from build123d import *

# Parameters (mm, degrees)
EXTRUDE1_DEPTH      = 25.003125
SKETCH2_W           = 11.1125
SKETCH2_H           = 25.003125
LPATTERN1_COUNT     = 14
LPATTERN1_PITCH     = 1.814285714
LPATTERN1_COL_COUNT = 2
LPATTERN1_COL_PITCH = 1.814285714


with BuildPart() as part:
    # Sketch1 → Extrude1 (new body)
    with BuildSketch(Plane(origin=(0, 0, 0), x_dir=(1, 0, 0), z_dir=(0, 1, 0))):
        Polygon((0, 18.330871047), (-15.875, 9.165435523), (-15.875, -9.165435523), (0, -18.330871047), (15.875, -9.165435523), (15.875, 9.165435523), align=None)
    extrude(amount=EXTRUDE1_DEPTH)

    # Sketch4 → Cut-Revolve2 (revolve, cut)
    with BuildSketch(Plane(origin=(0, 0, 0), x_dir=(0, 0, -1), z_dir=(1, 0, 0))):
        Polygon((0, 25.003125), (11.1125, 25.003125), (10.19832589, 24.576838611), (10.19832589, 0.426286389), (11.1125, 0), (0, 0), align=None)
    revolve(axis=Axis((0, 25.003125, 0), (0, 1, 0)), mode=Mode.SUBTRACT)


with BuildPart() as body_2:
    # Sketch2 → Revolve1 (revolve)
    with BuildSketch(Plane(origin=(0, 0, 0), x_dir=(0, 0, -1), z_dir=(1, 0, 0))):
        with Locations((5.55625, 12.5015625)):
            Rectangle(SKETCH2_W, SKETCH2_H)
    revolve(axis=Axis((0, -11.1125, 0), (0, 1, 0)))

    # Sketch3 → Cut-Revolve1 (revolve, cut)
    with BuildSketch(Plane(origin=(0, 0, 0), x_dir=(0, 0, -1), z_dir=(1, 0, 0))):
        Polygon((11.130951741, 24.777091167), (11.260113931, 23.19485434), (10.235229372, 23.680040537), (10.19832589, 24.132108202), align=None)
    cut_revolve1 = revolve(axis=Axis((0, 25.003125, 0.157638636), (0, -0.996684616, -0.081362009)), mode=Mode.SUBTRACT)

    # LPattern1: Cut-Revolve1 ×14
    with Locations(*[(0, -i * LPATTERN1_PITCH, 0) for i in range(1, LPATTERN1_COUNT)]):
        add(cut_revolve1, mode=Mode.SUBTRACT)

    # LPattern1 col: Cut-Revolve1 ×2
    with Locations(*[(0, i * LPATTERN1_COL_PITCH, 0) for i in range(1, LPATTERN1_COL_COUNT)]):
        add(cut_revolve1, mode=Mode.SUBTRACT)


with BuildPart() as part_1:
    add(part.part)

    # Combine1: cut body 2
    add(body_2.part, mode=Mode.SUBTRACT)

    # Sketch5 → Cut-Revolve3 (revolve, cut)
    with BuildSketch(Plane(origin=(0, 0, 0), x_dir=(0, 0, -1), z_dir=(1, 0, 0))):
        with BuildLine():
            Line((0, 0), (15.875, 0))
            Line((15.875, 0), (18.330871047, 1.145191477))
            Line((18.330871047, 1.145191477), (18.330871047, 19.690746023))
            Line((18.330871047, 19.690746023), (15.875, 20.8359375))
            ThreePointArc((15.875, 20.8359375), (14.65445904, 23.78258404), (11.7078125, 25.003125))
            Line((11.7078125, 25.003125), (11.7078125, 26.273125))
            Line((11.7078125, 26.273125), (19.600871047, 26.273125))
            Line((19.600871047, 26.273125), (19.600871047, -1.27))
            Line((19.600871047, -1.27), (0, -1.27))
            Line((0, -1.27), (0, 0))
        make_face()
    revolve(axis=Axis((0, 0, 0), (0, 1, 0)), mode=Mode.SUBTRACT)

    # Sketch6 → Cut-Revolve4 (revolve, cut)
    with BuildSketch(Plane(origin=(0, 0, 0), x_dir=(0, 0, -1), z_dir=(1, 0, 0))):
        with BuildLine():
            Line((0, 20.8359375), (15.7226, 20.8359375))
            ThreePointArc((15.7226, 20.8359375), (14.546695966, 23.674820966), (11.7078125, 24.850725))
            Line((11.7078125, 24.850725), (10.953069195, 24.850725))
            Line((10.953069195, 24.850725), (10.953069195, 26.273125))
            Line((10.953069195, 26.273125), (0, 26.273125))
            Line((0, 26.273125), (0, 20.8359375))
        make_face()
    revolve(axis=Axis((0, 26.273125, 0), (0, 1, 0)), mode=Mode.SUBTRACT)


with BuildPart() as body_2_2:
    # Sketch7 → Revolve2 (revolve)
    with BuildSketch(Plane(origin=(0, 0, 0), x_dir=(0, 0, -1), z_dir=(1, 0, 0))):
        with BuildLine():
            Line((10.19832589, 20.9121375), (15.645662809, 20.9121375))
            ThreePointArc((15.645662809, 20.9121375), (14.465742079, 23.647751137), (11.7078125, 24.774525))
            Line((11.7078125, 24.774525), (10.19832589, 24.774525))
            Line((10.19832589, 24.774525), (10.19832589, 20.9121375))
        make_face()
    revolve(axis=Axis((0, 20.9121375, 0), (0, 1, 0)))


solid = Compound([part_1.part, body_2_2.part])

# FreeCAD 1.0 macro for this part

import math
import FreeCAD as App
import Part
import Sketcher
Q = App.Units.Quantity

doc = App.newDocument("Part")
body = doc.addObject("PartDesign::Body", "Body")

# Sketch on XZ plane
sketch1 = body.newObject("Sketcher::SketchObject", "Sketch")
sketch1.AttachmentSupport = (doc.getObject("XZ_Plane"), [""])
sketch1.MapMode = "FlatFace"
sketch1.addGeometry(Part.LineSegment(App.Vector(0, -18, 0), App.Vector(-16, -9, 0)), False)
sketch1.addGeometry(Part.LineSegment(App.Vector(-16, -9, 0), App.Vector(-16, 9, 0)), False)
sketch1.addGeometry(Part.LineSegment(App.Vector(-16, 9, 0), App.Vector(0, 18, 0)), False)
sketch1.addGeometry(Part.LineSegment(App.Vector(0, 18, 0), App.Vector(16, 9, 0)), False)
sketch1.addGeometry(Part.LineSegment(App.Vector(16, 9, 0), App.Vector(16, -9, 0)), False)
sketch1.addGeometry(Part.LineSegment(App.Vector(16, -9, 0), App.Vector(0, -18, 0)), False)
sketch1.addConstraint(Sketcher.Constraint("Coincident", 0, 2, 1, 1))
sketch1.addConstraint(Sketcher.Constraint("Coincident", 1, 2, 2, 1))
sketch1.addConstraint(Sketcher.Constraint("Coincident", 2, 2, 3, 1))
sketch1.addConstraint(Sketcher.Constraint("Coincident", 3, 2, 4, 1))
sketch1.addConstraint(Sketcher.Constraint("Coincident", 4, 2, 5, 1))
sketch1.addConstraint(Sketcher.Constraint("Coincident", 5, 2, 0, 1))
sketch1.addConstraint(Sketcher.Constraint("Vertical", 1))
sketch1.addConstraint(Sketcher.Constraint("Vertical", 4))
sketch1.addConstraint(Sketcher.Constraint("Symmetric", 0, 2, 3, 2, -1, 1))
sketch1.addConstraint(Sketcher.Constraint("Symmetric", 2, 2, 5, 2, -1, 1))
sketch1.addConstraint(Sketcher.Constraint("PointOnObject", 2, 2, -2))
sketch1.addConstraint(Sketcher.Constraint("Parallel", 2, 5))
sketch1.addConstraint(Sketcher.Constraint("Horizontal", 1, 2, 3, 2))
sketch1.addConstraint(Sketcher.Constraint("Angle", 0, Q("150 deg")))
sketch1.addConstraint(Sketcher.Constraint("DistanceX", 1, 2, 3, 2, Q("1.25 in")))
sketch1.addConstraint(Sketcher.Constraint("DistanceY", 1, 1, 1, 2, Q("18.330871 mm")))
pad1 = body.newObject("PartDesign::Pad", "Pad")
pad1.Profile = sketch1
pad1.Length = Q("0.984375 in")
pad1.Reversed = True

# Sketch on YZ plane
sketch2 = body.newObject("Sketcher::SketchObject", "Sketch001")
sketch2.AttachmentSupport = (doc.getObject("YZ_Plane"), [""])
sketch2.MapMode = "FlatFace"
sketch2.addGeometry(Part.LineSegment(App.Vector(25, -11.1, 0), App.Vector(25, 0, 0)), False)
sketch2.addGeometry(Part.LineSegment(App.Vector(25, 0, 0), App.Vector(0, 0, 0)), False)
sketch2.addGeometry(Part.LineSegment(App.Vector(0, 0, 0), App.Vector(0, -11.1, 0)), False)
sketch2.addGeometry(Part.LineSegment(App.Vector(0, -11.1, 0), App.Vector(0.4, -10.2, 0)), False)
sketch2.addGeometry(Part.LineSegment(App.Vector(0.4, -10.2, 0), App.Vector(24.6, -10.2, 0)), False)
sketch2.addGeometry(Part.LineSegment(App.Vector(24.6, -10.2, 0), App.Vector(25, -11.1, 0)), False)
sketch2.addConstraint(Sketcher.Constraint("Coincident", 0, 2, 1, 1))
sketch2.addConstraint(Sketcher.Constraint("Coincident", 1, 2, 2, 1))
sketch2.addConstraint(Sketcher.Constraint("Coincident", 2, 2, 3, 1))
sketch2.addConstraint(Sketcher.Constraint("Coincident", 3, 2, 4, 1))
sketch2.addConstraint(Sketcher.Constraint("Coincident", 4, 2, 5, 1))
sketch2.addConstraint(Sketcher.Constraint("Coincident", 5, 2, 0, 1))
sketch2.addConstraint(Sketcher.Constraint("Vertical", 0))
sketch2.addConstraint(Sketcher.Constraint("Horizontal", 1))
sketch2.addConstraint(Sketcher.Constraint("Vertical", 2))
sketch2.addConstraint(Sketcher.Constraint("Horizontal", 4))
sketch2.addConstraint(Sketcher.Constraint("Coincident", 1, 2, -1, 1))
sketch2.addConstraint(Sketcher.Constraint("Horizontal", 2, 2, 5, 2))
sketch2.addConstraint(Sketcher.Constraint("Equal", 3, 5))
sketch2.addConstraint(Sketcher.Constraint("Angle", 3, Q("65 deg")))
sketch2.addConstraint(Sketcher.Constraint("DistanceX", 1, 2, 1, 1, Q("0.984375 in")))
sketch2.addConstraint(Sketcher.Constraint("DistanceY", 0, 1, 0, 2, Q("0.4375 in")))
sketch2.addConstraint(Sketcher.Constraint("Distance", 3, Q("1.00868 mm")))
groove = body.newObject("PartDesign::Groove", "Groove")
groove.Profile = sketch2
groove.ReferenceAxis = (sketch2, ["H_Axis"])
groove.Angle = 360
body2 = doc.addObject("PartDesign::Body", "Body001")

# Sketch on YZ plane
sketch3 = body2.newObject("Sketcher::SketchObject", "Sketch002")
sketch3.AttachmentSupport = (doc.getObject("YZ_Plane001"), [""])
sketch3.MapMode = "FlatFace"
sketch3.addGeometry(Part.LineSegment(App.Vector(25, 0, 0), App.Vector(0, 0, 0)), False)
sketch3.addGeometry(Part.LineSegment(App.Vector(0, 0, 0), App.Vector(0, -11, 0)), False)
sketch3.addGeometry(Part.LineSegment(App.Vector(0, -11, 0), App.Vector(25, -11, 0)), False)
sketch3.addGeometry(Part.LineSegment(App.Vector(25, -11, 0), App.Vector(25, 0, 0)), False)
sketch3.addConstraint(Sketcher.Constraint("Coincident", 0, 2, 1, 1))
sketch3.addConstraint(Sketcher.Constraint("Coincident", 1, 2, 2, 1))
sketch3.addConstraint(Sketcher.Constraint("Coincident", 2, 2, 3, 1))
sketch3.addConstraint(Sketcher.Constraint("Coincident", 3, 2, 0, 1))
sketch3.addConstraint(Sketcher.Constraint("Horizontal", 0))
sketch3.addConstraint(Sketcher.Constraint("Vertical", 1))
sketch3.addConstraint(Sketcher.Constraint("Horizontal", 2))
sketch3.addConstraint(Sketcher.Constraint("Vertical", 3))
sketch3.addConstraint(Sketcher.Constraint("Coincident", 0, 2, -1, 1))
sketch3.addConstraint(Sketcher.Constraint("DistanceX", 0, 2, 0, 1, Q("0.984375 in")))
sketch3.addConstraint(Sketcher.Constraint("DistanceY", 1, 2, 1, 1, Q("0.4375 in")))
revolution = body2.newObject("PartDesign::Revolution", "Revolution")
revolution.Profile = sketch3
revolution.ReferenceAxis = (sketch3, ["H_Axis"])
revolution.Angle = 360

# Sketch on YZ plane
sketch4 = body2.newObject("Sketcher::SketchObject", "Sketch003")
sketch4.AttachmentSupport = (doc.getObject("YZ_Plane001"), [""])
sketch4.MapMode = "FlatFace"
sketch4.addGeometry(Part.LineSegment(App.Vector(23.19, -11.26, 0), App.Vector(24.78, -11.13, 0)), False)
sketch4.addGeometry(Part.LineSegment(App.Vector(24.78, -11.13, 0), App.Vector(24.13, -10.2, 0)), False)
sketch4.addGeometry(Part.LineSegment(App.Vector(24.13, -10.2, 0), App.Vector(23.68, -10.24, 0)), False)
sketch4.addGeometry(Part.LineSegment(App.Vector(23.68, -10.24, 0), App.Vector(23.19, -11.26, 0)), False)
sketch4.addGeometry(Part.LineSegment(App.Vector(23.86, 0.06, 0), App.Vector(22.28, -0.06, 0)), True)  # axis
sketch4.addConstraint(Sketcher.Constraint("Coincident", 0, 2, 1, 1))
sketch4.addConstraint(Sketcher.Constraint("Coincident", 1, 2, 2, 1))
sketch4.addConstraint(Sketcher.Constraint("Coincident", 2, 2, 3, 1))
sketch4.addConstraint(Sketcher.Constraint("Coincident", 3, 2, 0, 1))
sketch4.addConstraint(Sketcher.Constraint("Parallel", 0, 2))
sketch4.addConstraint(Sketcher.Constraint("Parallel", 2, 4))
sketch4.addConstraint(Sketcher.Constraint("Equal", 1, 3))
sketch4.addConstraint(Sketcher.Constraint("Equal", 0, 4))
sketch4.addConstraint(Sketcher.Constraint("Distance", 0, Q("0.0625 in")))
sketch4.addConstraint(Sketcher.Constraint("Distance", 1, Q("1.133929 mm")))
sketch4.addConstraint(Sketcher.Constraint("Distance", 2, Q("0.453571 mm")))
sketch4.addConstraint(Sketcher.Constraint("DistanceX", -1, 1, 0, 2, Q("24.777091 mm")))
sketch4.addConstraint(Sketcher.Constraint("DistanceY", 0, 2, -1, 1, Q("11.130952 mm")))
sketch4.addConstraint(Sketcher.Constraint("DistanceX", -1, 1, 1, 2, Q("24.132108 mm")))
sketch4.addConstraint(Sketcher.Constraint("DistanceX", -1, 1, 4, 1, Q("23.86317 mm")))
sketch4.addConstraint(Sketcher.Constraint("DistanceY", -1, 1, 4, 1, Q("0.064581 mm")))
groove2 = body2.newObject("PartDesign::Groove", "Groove001")
groove2.Profile = sketch4
groove2.ReferenceAxis = (sketch4, ["Axis0"])
groove2.Angle = 360
doc.recompute()

linearpattern = body2.newObject("PartDesign::LinearPattern", "LinearPattern")
linearpattern.Originals = [groove2]
linearpattern.Direction = (doc.getObject("Y_Axis001"), [""])
linearpattern.Mode = "offset"
linearpattern.Offset = 1.814286
linearpattern.Occurrences = 14
linearpattern.Reversed = True
body2.Tip = linearpattern
doc.recompute()

linearpattern2 = body2.newObject("PartDesign::LinearPattern", "LinearPattern001")
linearpattern2.Originals = [groove2]
linearpattern2.Direction = (doc.getObject("Y_Axis001"), [""])
linearpattern2.Mode = "offset"
linearpattern2.Offset = 1.814286
linearpattern2.Occurrences = 2
body2.Tip = linearpattern2
doc.recompute()

boolean = body.newObject("PartDesign::Boolean", "Boolean")
boolean.Type = "Cut"
boolean.addObjects([body2])

# Sketch on YZ plane
sketch5 = body.newObject("Sketcher::SketchObject", "Sketch004")
sketch5.AttachmentSupport = (doc.getObject("YZ_Plane"), [""])
sketch5.MapMode = "FlatFace"
sketch5.addGeometry(Part.LineSegment(App.Vector(0, -15.9, 0), App.Vector(0, 0, 0)), False)
sketch5.addGeometry(Part.LineSegment(App.Vector(0, 0, 0), App.Vector(-1.3, 0, 0)), False)
sketch5.addGeometry(Part.LineSegment(App.Vector(-1.3, 0, 0), App.Vector(-1.3, -19.6, 0)), False)
sketch5.addGeometry(Part.LineSegment(App.Vector(-1.3, -19.6, 0), App.Vector(26.3, -19.6, 0)), False)
sketch5.addGeometry(Part.LineSegment(App.Vector(26.3, -19.6, 0), App.Vector(26.3, -11.7, 0)), False)
sketch5.addGeometry(Part.LineSegment(App.Vector(26.3, -11.7, 0), App.Vector(25, -11.7, 0)), False)
sketch5.addGeometry(Part.ArcOfCircle(Part.Circle(App.Vector(20.8, -11.7, 0), App.Vector(0, 0, 1), 4.2), math.radians(-90), math.radians(0)), False)
sketch5.addGeometry(Part.LineSegment(App.Vector(20.8, -15.9, 0), App.Vector(19.7, -18.3, 0)), False)
sketch5.addGeometry(Part.LineSegment(App.Vector(19.7, -18.3, 0), App.Vector(1.1, -18.3, 0)), False)
sketch5.addGeometry(Part.LineSegment(App.Vector(1.1, -18.3, 0), App.Vector(0, -15.9, 0)), False)
sketch5.addConstraint(Sketcher.Constraint("Coincident", 0, 2, 1, 1))
sketch5.addConstraint(Sketcher.Constraint("Coincident", 1, 2, 2, 1))
sketch5.addConstraint(Sketcher.Constraint("Coincident", 2, 2, 3, 1))
sketch5.addConstraint(Sketcher.Constraint("Coincident", 3, 2, 4, 1))
sketch5.addConstraint(Sketcher.Constraint("Coincident", 4, 2, 5, 1))
sketch5.addConstraint(Sketcher.Constraint("Coincident", 5, 2, 6, 2))
sketch5.addConstraint(Sketcher.Constraint("Coincident", 6, 1, 7, 1))
sketch5.addConstraint(Sketcher.Constraint("Coincident", 7, 2, 8, 1))
sketch5.addConstraint(Sketcher.Constraint("Coincident", 8, 2, 9, 1))
sketch5.addConstraint(Sketcher.Constraint("Coincident", 9, 2, 0, 1))
sketch5.addConstraint(Sketcher.Constraint("Vertical", 0))
sketch5.addConstraint(Sketcher.Constraint("Horizontal", 1))
sketch5.addConstraint(Sketcher.Constraint("Vertical", 2))
sketch5.addConstraint(Sketcher.Constraint("Horizontal", 3))
sketch5.addConstraint(Sketcher.Constraint("Vertical", 4))
sketch5.addConstraint(Sketcher.Constraint("Horizontal", 5))
sketch5.addConstraint(Sketcher.Constraint("Horizontal", 8))
sketch5.addConstraint(Sketcher.Constraint("Coincident", 0, 2, -1, 1))
sketch5.addConstraint(Sketcher.Constraint("Horizontal", 6, 3, 4, 2))
sketch5.addConstraint(Sketcher.Constraint("Horizontal", 6, 1, 9, 2))
sketch5.addConstraint(Sketcher.Constraint("Equal", 1, 5))
sketch5.addConstraint(Sketcher.Constraint("Equal", 7, 9))
sketch5.addConstraint(Sketcher.Constraint("Angle", 7, Q("-115 deg")))
sketch5.addConstraint(Sketcher.Constraint("DistanceX", 1, 2, 1, 1, Q("0.05 in")))
sketch5.addConstraint(Sketcher.Constraint("DistanceY", 0, 1, 0, 2, Q("0.625 in")))
sketch5.addConstraint(Sketcher.Constraint("DistanceY", 3, 2, 7, 2, Q("0.05 in")))
sketch5.addConstraint(Sketcher.Constraint("DistanceX", -1, 1, 5, 2, Q("0.984375 in")))
sketch5.addConstraint(Sketcher.Constraint("Radius", 6, Q("4.167187 mm")))
sketch5.addConstraint(Sketcher.Constraint("DistanceY", 2, 2, 2, 1, Q("19.600871 mm")))
sketch5.addConstraint(Sketcher.Constraint("DistanceX", 8, 2, 8, 1, Q("18.545555 mm")))
groove3 = body.newObject("PartDesign::Groove", "Groove002")
groove3.Profile = sketch5
groove3.ReferenceAxis = (sketch5, ["H_Axis"])
groove3.Angle = 360

# Sketch on YZ plane
sketch6 = body.newObject("Sketcher::SketchObject", "Sketch005")
sketch6.AttachmentSupport = (doc.getObject("YZ_Plane"), [""])
sketch6.MapMode = "FlatFace"
sketch6.addGeometry(Part.LineSegment(App.Vector(20.8, 0, 0), App.Vector(20.8, -15.7, 0)), False)
sketch6.addGeometry(Part.ArcOfCircle(Part.Circle(App.Vector(20.8, -11.7, 0), App.Vector(0, 0, 1), 4), math.radians(-90), math.radians(0)), False)
sketch6.addGeometry(Part.LineSegment(App.Vector(24.9, -11.7, 0), App.Vector(24.9, -11, 0)), False)
sketch6.addGeometry(Part.LineSegment(App.Vector(24.9, -11, 0), App.Vector(26.3, -11, 0)), False)
sketch6.addGeometry(Part.LineSegment(App.Vector(26.3, -11, 0), App.Vector(26.3, 0, 0)), False)
sketch6.addGeometry(Part.LineSegment(App.Vector(26.3, 0, 0), App.Vector(20.8, 0, 0)), False)
sketch6.addConstraint(Sketcher.Constraint("Coincident", 0, 2, 1, 1))
sketch6.addConstraint(Sketcher.Constraint("Tangent", 1, 2, 2, 1))
sketch6.addConstraint(Sketcher.Constraint("Coincident", 2, 2, 3, 1))
sketch6.addConstraint(Sketcher.Constraint("Coincident", 3, 2, 4, 1))
sketch6.addConstraint(Sketcher.Constraint("Coincident", 4, 2, 5, 1))
sketch6.addConstraint(Sketcher.Constraint("Coincident", 5, 2, 0, 1))
sketch6.addConstraint(Sketcher.Constraint("Vertical", 0))
sketch6.addConstraint(Sketcher.Constraint("Vertical", 2))
sketch6.addConstraint(Sketcher.Constraint("Horizontal", 3))
sketch6.addConstraint(Sketcher.Constraint("Vertical", 4))
sketch6.addConstraint(Sketcher.Constraint("Horizontal", 5))
sketch6.addConstraint(Sketcher.Constraint("PointOnObject", 4, 2, -1))
sketch6.addConstraint(Sketcher.Constraint("Vertical", 1, 3, 0, 2))
sketch6.addConstraint(Sketcher.Constraint("DistanceX", 3, 1, 3, 2, Q("0.056 in")))
sketch6.addConstraint(Sketcher.Constraint("DistanceY", 0, 2, 0, 1, Q("0.619 in")))
sketch6.addConstraint(Sketcher.Constraint("Radius", 1, Q("4.014788 mm")))
sketch6.addConstraint(Sketcher.Constraint("DistanceY", 4, 1, 4, 2, Q("10.953069 mm")))
sketch6.addConstraint(Sketcher.Constraint("DistanceX", -1, 1, 1, 3, Q("20.835937 mm")))
groove4 = body.newObject("PartDesign::Groove", "Groove003")
groove4.Profile = sketch6
groove4.ReferenceAxis = (sketch6, ["H_Axis"])
groove4.Angle = 360
body3 = doc.addObject("PartDesign::Body", "Body002")

# Sketch on YZ plane
sketch7 = body3.newObject("Sketcher::SketchObject", "Sketch006")
sketch7.AttachmentSupport = (doc.getObject("YZ_Plane002"), [""])
sketch7.MapMode = "FlatFace"
sketch7.addGeometry(Part.LineSegment(App.Vector(20.9, -10.2, 0), App.Vector(20.9, -15.6, 0)), False)
sketch7.addGeometry(Part.ArcOfCircle(Part.Circle(App.Vector(20.8, -11.7, 0), App.Vector(0, 0, 1), 3.9), math.radians(-89), math.radians(0)), False)
sketch7.addGeometry(Part.LineSegment(App.Vector(24.8, -11.7, 0), App.Vector(24.8, -10.2, 0)), False)
sketch7.addGeometry(Part.LineSegment(App.Vector(24.8, -10.2, 0), App.Vector(20.9, -10.2, 0)), False)
sketch7.addConstraint(Sketcher.Constraint("Coincident", 0, 2, 1, 1))
sketch7.addConstraint(Sketcher.Constraint("Tangent", 1, 2, 2, 1))
sketch7.addConstraint(Sketcher.Constraint("Coincident", 2, 2, 3, 1))
sketch7.addConstraint(Sketcher.Constraint("Coincident", 3, 2, 0, 1))
sketch7.addConstraint(Sketcher.Constraint("Vertical", 0))
sketch7.addConstraint(Sketcher.Constraint("Vertical", 2))
sketch7.addConstraint(Sketcher.Constraint("Horizontal", 3))
sketch7.addConstraint(Sketcher.Constraint("DistanceX", 1, 3, 0, 2, Q("0.003 in")))
sketch7.addConstraint(Sketcher.Constraint("Radius", 1, Q("3.938588 mm")))
sketch7.addConstraint(Sketcher.Constraint("DistanceY", 0, 2, 0, 1, Q("5.447337 mm")))
sketch7.addConstraint(Sketcher.Constraint("DistanceX", -1, 1, 1, 3, Q("20.835937 mm")))
sketch7.addConstraint(Sketcher.Constraint("DistanceY", 1, 3, -1, 1, Q("11.707812 mm")))
revolution2 = body3.newObject("PartDesign::Revolution", "Revolution001")
revolution2.Profile = sketch7
revolution2.ReferenceAxis = (sketch7, ["H_Axis"])
revolution2.Angle = 360

doc.recompute()
